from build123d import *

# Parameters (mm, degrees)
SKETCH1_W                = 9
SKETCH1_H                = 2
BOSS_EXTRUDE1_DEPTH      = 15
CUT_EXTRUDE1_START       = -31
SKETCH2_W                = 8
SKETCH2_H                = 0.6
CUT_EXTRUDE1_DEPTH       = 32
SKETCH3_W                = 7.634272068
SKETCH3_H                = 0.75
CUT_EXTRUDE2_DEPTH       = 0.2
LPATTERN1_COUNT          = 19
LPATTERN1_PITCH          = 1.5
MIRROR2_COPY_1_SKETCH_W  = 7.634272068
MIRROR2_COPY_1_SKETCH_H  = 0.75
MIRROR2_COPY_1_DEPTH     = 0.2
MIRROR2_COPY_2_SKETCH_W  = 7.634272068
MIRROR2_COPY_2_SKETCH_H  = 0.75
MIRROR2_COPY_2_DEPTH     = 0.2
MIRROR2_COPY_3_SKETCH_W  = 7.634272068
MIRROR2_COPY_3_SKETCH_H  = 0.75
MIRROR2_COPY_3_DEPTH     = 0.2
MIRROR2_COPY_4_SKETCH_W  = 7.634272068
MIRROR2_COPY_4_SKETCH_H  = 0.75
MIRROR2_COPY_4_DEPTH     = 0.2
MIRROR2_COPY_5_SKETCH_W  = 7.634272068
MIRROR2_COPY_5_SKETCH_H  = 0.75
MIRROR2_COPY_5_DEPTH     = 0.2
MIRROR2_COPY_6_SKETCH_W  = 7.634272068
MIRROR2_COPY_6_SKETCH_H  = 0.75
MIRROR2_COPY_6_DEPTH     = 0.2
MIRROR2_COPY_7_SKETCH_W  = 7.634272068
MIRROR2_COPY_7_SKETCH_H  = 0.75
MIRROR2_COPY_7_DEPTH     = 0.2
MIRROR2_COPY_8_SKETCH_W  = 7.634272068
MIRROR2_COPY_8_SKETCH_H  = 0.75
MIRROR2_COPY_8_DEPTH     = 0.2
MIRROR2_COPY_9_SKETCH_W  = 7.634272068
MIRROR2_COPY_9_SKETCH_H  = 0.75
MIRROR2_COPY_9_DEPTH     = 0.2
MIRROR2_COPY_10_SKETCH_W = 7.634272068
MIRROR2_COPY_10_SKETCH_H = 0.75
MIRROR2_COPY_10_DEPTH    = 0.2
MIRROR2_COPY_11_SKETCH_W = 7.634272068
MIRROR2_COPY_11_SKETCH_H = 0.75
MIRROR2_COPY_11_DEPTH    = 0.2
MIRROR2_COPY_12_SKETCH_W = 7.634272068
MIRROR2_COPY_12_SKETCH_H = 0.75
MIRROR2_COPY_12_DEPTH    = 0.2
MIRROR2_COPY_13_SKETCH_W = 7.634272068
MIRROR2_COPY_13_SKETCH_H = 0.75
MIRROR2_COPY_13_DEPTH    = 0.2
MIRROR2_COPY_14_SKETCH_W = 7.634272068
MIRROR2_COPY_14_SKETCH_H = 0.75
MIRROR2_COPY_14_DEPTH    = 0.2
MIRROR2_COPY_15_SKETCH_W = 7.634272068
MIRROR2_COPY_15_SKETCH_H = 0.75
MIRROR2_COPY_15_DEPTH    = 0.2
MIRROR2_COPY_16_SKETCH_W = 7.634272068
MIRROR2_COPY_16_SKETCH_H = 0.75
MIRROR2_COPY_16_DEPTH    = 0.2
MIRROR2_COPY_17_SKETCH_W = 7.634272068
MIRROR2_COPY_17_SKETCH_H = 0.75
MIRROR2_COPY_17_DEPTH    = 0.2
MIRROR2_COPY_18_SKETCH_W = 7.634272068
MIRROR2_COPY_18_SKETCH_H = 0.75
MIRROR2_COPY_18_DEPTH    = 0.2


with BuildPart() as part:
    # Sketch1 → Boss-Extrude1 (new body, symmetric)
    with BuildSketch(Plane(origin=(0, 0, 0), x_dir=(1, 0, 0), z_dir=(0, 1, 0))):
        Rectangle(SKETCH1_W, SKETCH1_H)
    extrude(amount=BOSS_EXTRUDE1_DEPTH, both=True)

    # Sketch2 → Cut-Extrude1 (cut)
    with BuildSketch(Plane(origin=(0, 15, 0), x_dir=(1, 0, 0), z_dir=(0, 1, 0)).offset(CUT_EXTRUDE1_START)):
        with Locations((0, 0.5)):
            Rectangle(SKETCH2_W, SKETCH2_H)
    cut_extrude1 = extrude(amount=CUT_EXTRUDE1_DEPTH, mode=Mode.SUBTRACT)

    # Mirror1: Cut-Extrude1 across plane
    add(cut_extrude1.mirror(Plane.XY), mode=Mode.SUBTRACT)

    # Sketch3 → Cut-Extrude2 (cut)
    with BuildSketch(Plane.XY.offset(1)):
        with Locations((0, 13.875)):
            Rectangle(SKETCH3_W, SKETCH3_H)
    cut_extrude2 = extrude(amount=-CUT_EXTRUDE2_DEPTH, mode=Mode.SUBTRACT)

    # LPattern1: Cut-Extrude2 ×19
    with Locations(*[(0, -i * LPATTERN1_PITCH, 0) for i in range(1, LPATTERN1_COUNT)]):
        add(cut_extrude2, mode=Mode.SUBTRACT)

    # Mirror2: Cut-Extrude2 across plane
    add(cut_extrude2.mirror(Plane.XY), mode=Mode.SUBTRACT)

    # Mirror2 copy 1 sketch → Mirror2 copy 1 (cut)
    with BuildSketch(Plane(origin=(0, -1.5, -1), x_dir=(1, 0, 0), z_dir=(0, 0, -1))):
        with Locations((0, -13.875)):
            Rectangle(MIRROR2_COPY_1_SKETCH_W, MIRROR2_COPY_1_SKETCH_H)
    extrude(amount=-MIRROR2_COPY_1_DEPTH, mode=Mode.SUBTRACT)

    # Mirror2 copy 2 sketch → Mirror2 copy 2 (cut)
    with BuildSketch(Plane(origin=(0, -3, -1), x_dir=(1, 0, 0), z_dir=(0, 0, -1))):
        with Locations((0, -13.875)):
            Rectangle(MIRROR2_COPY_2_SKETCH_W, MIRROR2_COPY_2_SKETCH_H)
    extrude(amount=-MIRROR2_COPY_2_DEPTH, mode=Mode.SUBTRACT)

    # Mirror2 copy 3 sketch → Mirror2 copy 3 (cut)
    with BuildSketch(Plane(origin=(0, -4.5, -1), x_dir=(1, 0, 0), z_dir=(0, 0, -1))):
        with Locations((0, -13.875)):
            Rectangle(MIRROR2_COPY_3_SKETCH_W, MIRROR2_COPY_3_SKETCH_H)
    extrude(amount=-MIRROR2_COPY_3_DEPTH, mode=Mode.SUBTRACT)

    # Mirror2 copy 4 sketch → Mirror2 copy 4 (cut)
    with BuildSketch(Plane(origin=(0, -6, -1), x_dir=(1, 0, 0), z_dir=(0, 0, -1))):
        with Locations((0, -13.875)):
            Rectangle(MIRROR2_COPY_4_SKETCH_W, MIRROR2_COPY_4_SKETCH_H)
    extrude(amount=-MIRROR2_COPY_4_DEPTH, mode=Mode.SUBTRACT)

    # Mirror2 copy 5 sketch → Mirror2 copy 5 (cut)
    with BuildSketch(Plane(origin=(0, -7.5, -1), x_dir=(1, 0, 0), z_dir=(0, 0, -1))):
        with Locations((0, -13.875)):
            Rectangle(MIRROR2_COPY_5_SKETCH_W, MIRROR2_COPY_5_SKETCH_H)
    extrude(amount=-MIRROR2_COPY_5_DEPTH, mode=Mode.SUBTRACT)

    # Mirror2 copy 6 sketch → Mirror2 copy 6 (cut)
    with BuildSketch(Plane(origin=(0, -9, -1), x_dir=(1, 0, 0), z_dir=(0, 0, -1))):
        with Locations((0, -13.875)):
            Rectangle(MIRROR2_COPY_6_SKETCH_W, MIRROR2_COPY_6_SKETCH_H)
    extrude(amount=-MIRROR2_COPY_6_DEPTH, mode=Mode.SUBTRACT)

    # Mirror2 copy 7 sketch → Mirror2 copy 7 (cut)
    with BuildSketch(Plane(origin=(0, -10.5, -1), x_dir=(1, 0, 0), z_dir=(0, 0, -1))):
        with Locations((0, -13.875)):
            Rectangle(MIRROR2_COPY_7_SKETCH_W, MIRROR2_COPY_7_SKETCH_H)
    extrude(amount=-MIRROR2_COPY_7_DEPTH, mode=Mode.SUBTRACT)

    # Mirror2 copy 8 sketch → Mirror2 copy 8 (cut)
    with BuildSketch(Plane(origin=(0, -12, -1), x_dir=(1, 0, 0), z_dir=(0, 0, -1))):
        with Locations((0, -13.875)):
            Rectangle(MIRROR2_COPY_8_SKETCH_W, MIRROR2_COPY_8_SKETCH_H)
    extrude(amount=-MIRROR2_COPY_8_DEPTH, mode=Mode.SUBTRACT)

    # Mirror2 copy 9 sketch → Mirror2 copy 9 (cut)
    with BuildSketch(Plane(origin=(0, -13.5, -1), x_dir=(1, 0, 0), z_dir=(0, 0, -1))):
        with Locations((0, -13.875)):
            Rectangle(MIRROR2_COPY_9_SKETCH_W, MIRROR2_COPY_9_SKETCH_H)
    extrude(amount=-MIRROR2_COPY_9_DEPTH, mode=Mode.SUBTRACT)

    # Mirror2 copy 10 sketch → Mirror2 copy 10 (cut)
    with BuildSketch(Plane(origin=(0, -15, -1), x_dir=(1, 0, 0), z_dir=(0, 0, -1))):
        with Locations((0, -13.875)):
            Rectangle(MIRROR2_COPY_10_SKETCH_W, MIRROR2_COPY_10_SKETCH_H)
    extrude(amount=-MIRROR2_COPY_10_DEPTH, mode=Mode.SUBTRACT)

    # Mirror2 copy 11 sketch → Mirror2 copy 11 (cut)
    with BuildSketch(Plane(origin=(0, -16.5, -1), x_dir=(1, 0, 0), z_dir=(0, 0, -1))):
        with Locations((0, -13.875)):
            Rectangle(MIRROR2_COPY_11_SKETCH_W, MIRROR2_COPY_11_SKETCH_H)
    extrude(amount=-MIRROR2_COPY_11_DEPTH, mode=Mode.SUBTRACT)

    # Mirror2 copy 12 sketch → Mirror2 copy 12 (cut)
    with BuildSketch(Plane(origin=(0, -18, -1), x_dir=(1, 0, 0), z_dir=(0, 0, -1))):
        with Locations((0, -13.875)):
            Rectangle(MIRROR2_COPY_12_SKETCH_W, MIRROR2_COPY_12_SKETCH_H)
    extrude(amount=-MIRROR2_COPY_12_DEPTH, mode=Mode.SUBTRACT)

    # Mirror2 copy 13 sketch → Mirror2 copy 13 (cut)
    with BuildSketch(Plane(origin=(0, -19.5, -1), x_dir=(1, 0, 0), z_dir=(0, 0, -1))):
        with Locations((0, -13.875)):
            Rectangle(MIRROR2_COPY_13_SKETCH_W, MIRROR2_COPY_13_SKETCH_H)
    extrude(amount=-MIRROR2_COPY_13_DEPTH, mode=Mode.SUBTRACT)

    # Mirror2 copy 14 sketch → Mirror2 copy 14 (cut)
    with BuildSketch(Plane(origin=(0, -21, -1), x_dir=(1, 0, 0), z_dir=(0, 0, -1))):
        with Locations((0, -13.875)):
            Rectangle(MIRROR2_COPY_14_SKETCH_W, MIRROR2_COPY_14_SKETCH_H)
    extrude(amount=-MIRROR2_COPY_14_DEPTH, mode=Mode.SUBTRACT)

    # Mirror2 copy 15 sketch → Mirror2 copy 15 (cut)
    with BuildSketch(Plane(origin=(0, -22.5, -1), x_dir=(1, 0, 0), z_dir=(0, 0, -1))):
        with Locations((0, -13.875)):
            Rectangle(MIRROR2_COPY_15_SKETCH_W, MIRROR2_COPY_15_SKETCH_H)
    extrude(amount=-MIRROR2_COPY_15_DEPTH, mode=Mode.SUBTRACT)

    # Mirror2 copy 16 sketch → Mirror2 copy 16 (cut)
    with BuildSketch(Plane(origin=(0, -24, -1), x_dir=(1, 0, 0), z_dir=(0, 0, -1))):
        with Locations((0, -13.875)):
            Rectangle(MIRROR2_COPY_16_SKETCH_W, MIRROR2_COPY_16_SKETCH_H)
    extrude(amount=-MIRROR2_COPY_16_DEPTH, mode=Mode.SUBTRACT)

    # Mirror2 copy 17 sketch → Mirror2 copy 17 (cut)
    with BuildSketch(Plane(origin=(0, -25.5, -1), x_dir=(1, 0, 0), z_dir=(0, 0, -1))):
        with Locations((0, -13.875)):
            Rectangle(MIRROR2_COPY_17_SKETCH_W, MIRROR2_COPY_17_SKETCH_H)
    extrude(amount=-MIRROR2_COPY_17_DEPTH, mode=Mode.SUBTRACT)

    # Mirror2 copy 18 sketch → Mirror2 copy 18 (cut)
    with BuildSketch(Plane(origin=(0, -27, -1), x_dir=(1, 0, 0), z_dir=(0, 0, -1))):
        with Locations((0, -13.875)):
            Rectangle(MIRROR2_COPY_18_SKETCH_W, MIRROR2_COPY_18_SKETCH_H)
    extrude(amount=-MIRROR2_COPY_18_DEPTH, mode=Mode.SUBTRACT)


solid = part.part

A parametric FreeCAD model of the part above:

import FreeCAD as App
import Part
import Sketcher

V = App.Vector
Q = App.Units.Quantity

doc = App.newDocument("Part")
body = doc.addObject("PartDesign::Body", "Body")

sketch1 = body.newObject("Sketcher::SketchObject", "Sketch")
sketch1.AttachmentSupport = (doc.getObject("XZ_Plane"), [""])
sketch1.MapMode = "FlatFace"
sketch1.addGeometry([
    Part.LineSegment(V(-4.5, -1, 0), V(-4.5, 1, 0)),
    Part.LineSegment(V(-4.5, 1, 0), V(4.5, 1, 0)),
    Part.LineSegment(V(4.5, 1, 0), V(4.5, -1, 0)),
    Part.LineSegment(V(4.5, -1, 0), V(-4.5, -1, 0)),
], False)
sketch1.addConstraint([
    Sketcher.Constraint("Coincident", 0, 2, 1, 1),
    Sketcher.Constraint("Coincident", 1, 2, 2, 1),
    Sketcher.Constraint("Coincident", 2, 2, 3, 1),
    Sketcher.Constraint("Coincident", 3, 2, 0, 1),
    Sketcher.Constraint("Vertical", 0),
    Sketcher.Constraint("Horizontal", 1),
    Sketcher.Constraint("Vertical", 2),
    Sketcher.Constraint("Horizontal", 3),
    Sketcher.Constraint("Symmetric", 0, 2, 2, 2, -1, 1),
    Sketcher.Constraint("DistanceX", 1, 1, 1, 2, Q("9 mm")),
    Sketcher.Constraint("DistanceY", 0, 1, 0, 2, Q("2 mm")),
])
pad1 = body.newObject("PartDesign::Pad", "Pad")
pad1.Profile = sketch1
pad1.Length = 30
pad1.Midplane = True

sketch2 = body.newObject("Sketcher::SketchObject", "Sketch001")
sketch2.AttachmentSupport = (doc.getObject("XZ_Plane"), [""])
sketch2.MapMode = "FlatFace"
sketch2.AttachmentOffset = App.Placement(V(0, 0, 16), App.Rotation())
sketch2.addGeometry([
    Part.LineSegment(V(-4, -0.8, 0), V(-4, -0.2, 0)),
    Part.LineSegment(V(-4, -0.2, 0), V(4, -0.2, 0)),
    Part.LineSegment(V(4, -0.2, 0), V(4, -0.8, 0)),
    Part.LineSegment(V(4, -0.8, 0), V(-4, -0.8, 0)),
], False)
sketch2.addConstraint([
    Sketcher.Constraint("Coincident", 0, 2, 1, 1),
    Sketcher.Constraint("Coincident", 1, 2, 2, 1),
    Sketcher.Constraint("Coincident", 2, 2, 3, 1),
    Sketcher.Constraint("Coincident", 3, 2, 0, 1),
    Sketcher.Constraint("Vertical", 0),
    Sketcher.Constraint("Horizontal", 1),
    Sketcher.Constraint("Vertical", 2),
    Sketcher.Constraint("Horizontal", 3),
    Sketcher.Constraint("DistanceX", 1, 1, 1, 2, Q("8 mm")),
    Sketcher.Constraint("DistanceY", 0, 1, 0, 2, Q("0.6 mm")),
    Sketcher.Constraint("DistanceX", 0, 2, -1, 1, Q("4 mm")),
    Sketcher.Constraint("DistanceY", 0, 2, -1, 1, Q("0.2 mm")),
])
pocket1 = body.newObject("PartDesign::Pocket", "Pocket")
pocket1.Profile = sketch2
pocket1.Length = 32
doc.recompute()

mirrored = body.newObject("PartDesign::Mirrored", "Mirrored")
mirrored.Originals = [pocket1]
mirrored.MirrorPlane = (doc.getObject("XY_Plane"), [""])
body.Tip = mirrored

sketch3 = body.newObject("Sketcher::SketchObject", "Sketch002")
sketch3.AttachmentSupport = (doc.getObject("XY_Plane"), [""])
sketch3.MapMode = "FlatFace"
sketch3.AttachmentOffset = App.Placement(V(0, 0, 1), App.Rotation())
sketch3.addGeometry([
    Part.LineSegment(V(-3.8, 14.2, 0), V(-3.8, 13.5, 0)),
    Part.LineSegment(V(-3.8, 13.5, 0), V(3.8, 13.5, 0)),
    Part.LineSegment(V(3.8, 13.5, 0), V(3.8, 14.2, 0)),
    Part.LineSegment(V(3.8, 14.2, 0), V(-3.8, 14.2, 0)),
], False)
sketch3.addConstraint([
    Sketcher.Constraint("Coincident", 0, 2, 1, 1),
    Sketcher.Constraint("Coincident", 1, 2, 2, 1),
    Sketcher.Constraint("Coincident", 2, 2, 3, 1),
    Sketcher.Constraint("Coincident", 3, 2, 0, 1),
    Sketcher.Constraint("Vertical", 0),
    Sketcher.Constraint("Horizontal", 1),
    Sketcher.Constraint("Vertical", 2),
    Sketcher.Constraint("Horizontal", 3),
    Sketcher.Constraint("DistanceY", 0, 2, 0, 1, Q("0.75 mm")),
    Sketcher.Constraint("DistanceY", -1, 1, 0, 2, Q("13.5 mm")),
    Sketcher.Constraint("DistanceX", 1, 1, 1, 2, Q("7.634272 mm")),
    Sketcher.Constraint("DistanceX", 0, 2, -1, 1, Q("3.817136 mm")),
])
pocket2 = body.newObject("PartDesign::Pocket", "Pocket001")
pocket2.Profile = sketch3
pocket2.Length = 0.2
doc.recompute()

linearpattern = body.newObject("PartDesign::LinearPattern", "LinearPattern")
linearpattern.Originals = [pocket2]
linearpattern.Direction = (doc.getObject("Y_Axis"), [""])
linearpattern.Mode = "offset"
linearpattern.Offset = 1.5
linearpattern.Occurrences = 19
linearpattern.Reversed = True
body.Tip = linearpattern
doc.recompute()

mirrored2 = body.newObject("PartDesign::Mirrored", "Mirrored001")
mirrored2.Originals = [pocket2]
mirrored2.MirrorPlane = (doc.getObject("XY_Plane"), [""])
body.Tip = mirrored2

sketch4 = body.newObject("Sketcher::SketchObject", "Sketch003")
sketch4.AttachmentSupport = (doc.getObject("XY_Plane"), [""])
sketch4.MapMode = "FlatFace"
sketch4.AttachmentOffset = App.Placement(V(0, 0, -1), App.Rotation())
sketch4.addGeometry([
    Part.LineSegment(V(-3.8, 12, 0), V(-3.8, 12.8, 0)),
    Part.LineSegment(V(-3.8, 12.8, 0), V(3.8, 12.8, 0)),
    Part.LineSegment(V(3.8, 12.8, 0), V(3.8, 12, 0)),
    Part.LineSegment(V(3.8, 12, 0), V(-3.8, 12, 0)),
], False)
sketch4.addConstraint([
    Sketcher.Constraint("Coincident", 0, 2, 1, 1),
    Sketcher.Constraint("Coincident", 1, 2, 2, 1),
    Sketcher.Constraint("Coincident", 2, 2, 3, 1),
    Sketcher.Constraint("Coincident", 3, 2, 0, 1),
    Sketcher.Constraint("Vertical", 0),
    Sketcher.Constraint("Horizontal", 1),
    Sketcher.Constraint("Vertical", 2),
    Sketcher.Constraint("Horizontal", 3),
    Sketcher.Constraint("DistanceY", -1, 1, 2, 2, Q("12 mm")),
    Sketcher.Constraint("DistanceY", 0, 1, 0, 2, Q("0.75 mm")),
    Sketcher.Constraint("DistanceX", 1, 1, 1, 2, Q("7.634272 mm")),
    Sketcher.Constraint("DistanceX", 0, 2, -1, 1, Q("3.817136 mm")),
])
pocket3 = body.newObject("PartDesign::Pocket", "Pocket002")
pocket3.Profile = sketch4
pocket3.Length = 0.2
pocket3.Reversed = True

sketch5 = body.newObject("Sketcher::SketchObject", "Sketch004")
sketch5.AttachmentSupport = (doc.getObject("XY_Plane"), [""])
sketch5.MapMode = "FlatFace"
sketch5.AttachmentOffset = App.Placement(V(0, 0, -1), App.Rotation())
sketch5.addGeometry([
    Part.LineSegment(V(-3.8, 10.5, 0), V(-3.8, 11.2, 0)),
    Part.LineSegment(V(-3.8, 11.2, 0), V(3.8, 11.2, 0)),
    Part.LineSegment(V(3.8, 11.2, 0), V(3.8, 10.5, 0)),
    Part.LineSegment(V(3.8, 10.5, 0), V(-3.8, 10.5, 0)),
], False)
sketch5.addConstraint([
    Sketcher.Constraint("Coincident", 0, 2, 1, 1),
    Sketcher.Constraint("Coincident", 1, 2, 2, 1),
    Sketcher.Constraint("Coincident", 2, 2, 3, 1),
    Sketcher.Constraint("Coincident", 3, 2, 0, 1),
    Sketcher.Constraint("Vertical", 0),
    Sketcher.Constraint("Horizontal", 1),
    Sketcher.Constraint("Vertical", 2),
    Sketcher.Constraint("Horizontal", 3),
    Sketcher.Constraint("DistanceY", 0, 1, 0, 2, Q("0.75 mm")),
    Sketcher.Constraint("DistanceY", -1, 1, 2, 2, Q("10.5 mm")),
    Sketcher.Constraint("DistanceX", 1, 1, 1, 2, Q("7.634272 mm")),
    Sketcher.Constraint("DistanceX", 0, 2, -1, 1, Q("3.817136 mm")),
])
pocket4 = body.newObject("PartDesign::Pocket", "Pocket003")
pocket4.Profile = sketch5
pocket4.Length = 0.2
pocket4.Reversed = True

sketch6 = body.newObject("Sketcher::SketchObject", "Sketch005")
sketch6.AttachmentSupport = (doc.getObject("XY_Plane"), [""])
sketch6.MapMode = "FlatFace"
sketch6.AttachmentOffset = App.Placement(V(0, 0, -1), App.Rotation())
sketch6.addGeometry([
    Part.LineSegment(V(-3.8, 9, 0), V(-3.8, 9.8, 0)),
    Part.LineSegment(V(-3.8, 9.8, 0), V(3.8, 9.8, 0)),
    Part.LineSegment(V(3.8, 9.8, 0), V(3.8, 9, 0)),
    Part.LineSegment(V(3.8, 9, 0), V(-3.8, 9, 0)),
], False)
sketch6.addConstraint([
    Sketcher.Constraint("Coincident", 0, 2, 1, 1),
    Sketcher.Constraint("Coincident", 1, 2, 2, 1),
    Sketcher.Constraint("Coincident", 2, 2, 3, 1),
    Sketcher.Constraint("Coincident", 3, 2, 0, 1),
    Sketcher.Constraint("Vertical", 0),
    Sketcher.Constraint("Horizontal", 1),
    Sketcher.Constraint("Vertical", 2),
    Sketcher.Constraint("Horizontal", 3),
    Sketcher.Constraint("DistanceY", -1, 1, 2, 2, Q("9 mm")),
    Sketcher.Constraint("DistanceY", 0, 1, 0, 2, Q("0.75 mm")),
    Sketcher.Constraint("DistanceX", 1, 1, 1, 2, Q("7.634272 mm")),
    Sketcher.Constraint("DistanceX", 0, 2, -1, 1, Q("3.817136 mm")),
])
pocket5 = body.newObject("PartDesign::Pocket", "Pocket004")
pocket5.Profile = sketch6
pocket5.Length = 0.2
pocket5.Reversed = True

sketch7 = body.newObject("Sketcher::SketchObject", "Sketch006")
sketch7.AttachmentSupport = (doc.getObject("XY_Plane"), [""])
sketch7.MapMode = "FlatFace"
sketch7.AttachmentOffset = App.Placement(V(0, 0, -1), App.Rotation())
sketch7.addGeometry([
    Part.LineSegment(V(-3.8, 7.5, 0), V(-3.8, 8.2, 0)),
    Part.LineSegment(V(-3.8, 8.2, 0), V(3.8, 8.2, 0)),
    Part.LineSegment(V(3.8, 8.2, 0), V(3.8, 7.5, 0)),
    Part.LineSegment(V(3.8, 7.5, 0), V(-3.8, 7.5, 0)),
], False)
sketch7.addConstraint([
    Sketcher.Constraint("Coincident", 0, 2, 1, 1),
    Sketcher.Constraint("Coincident", 1, 2, 2, 1),
    Sketcher.Constraint("Coincident", 2, 2, 3, 1),
    Sketcher.Constraint("Coincident", 3, 2, 0, 1),
    Sketcher.Constraint("Vertical", 0),
    Sketcher.Constraint("Horizontal", 1),
    Sketcher.Constraint("Vertical", 2),
    Sketcher.Constraint("Horizontal", 3),
    Sketcher.Constraint("DistanceY", 0, 1, 0, 2, Q("0.75 mm")),
    Sketcher.Constraint("DistanceY", -1, 1, 2, 2, Q("7.5 mm")),
    Sketcher.Constraint("DistanceX", 1, 1, 1, 2, Q("7.634272 mm")),
    Sketcher.Constraint("DistanceX", 0, 2, -1, 1, Q("3.817136 mm")),
])
pocket6 = body.newObject("PartDesign::Pocket", "Pocket005")
pocket6.Profile = sketch7
pocket6.Length = 0.2
pocket6.Reversed = True

sketch8 = body.newObject("Sketcher::SketchObject", "Sketch007")
sketch8.AttachmentSupport = (doc.getObject("XY_Plane"), [""])
sketch8.MapMode = "FlatFace"
sketch8.AttachmentOffset = App.Placement(V(0, 0, -1), App.Rotation())
sketch8.addGeometry([
    Part.LineSegment(V(-3.8, 6, 0), V(-3.8, 6.8, 0)),
    Part.LineSegment(V(-3.8, 6.8, 0), V(3.8, 6.8, 0)),
    Part.LineSegment(V(3.8, 6.8, 0), V(3.8, 6, 0)),
    Part.LineSegment(V(3.8, 6, 0), V(-3.8, 6, 0)),
], False)
sketch8.addConstraint([
    Sketcher.Constraint("Coincident", 0, 2, 1, 1),
    Sketcher.Constraint("Coincident", 1, 2, 2, 1),
    Sketcher.Constraint("Coincident", 2, 2, 3, 1),
    Sketcher.Constraint("Coincident", 3, 2, 0, 1),
    Sketcher.Constraint("Vertical", 0),
    Sketcher.Constraint("Horizontal", 1),
    Sketcher.Constraint("Vertical", 2),
    Sketcher.Constraint("Horizontal", 3),
    Sketcher.Constraint("DistanceY", -1, 1, 2, 2, Q("6 mm")),
    Sketcher.Constraint("DistanceY", 0, 1, 0, 2, Q("0.75 mm")),
    Sketcher.Constraint("DistanceX", 1, 1, 1, 2, Q("7.634272 mm")),
    Sketcher.Constraint("DistanceX", 0, 2, -1, 1, Q("3.817136 mm")),
])
pocket7 = body.newObject("PartDesign::Pocket", "Pocket006")
pocket7.Profile = sketch8
pocket7.Length = 0.2
pocket7.Reversed = True

sketch9 = body.newObject("Sketcher::SketchObject", "Sketch008")
sketch9.AttachmentSupport = (doc.getObject("XY_Plane"), [""])
sketch9.MapMode = "FlatFace"
sketch9.AttachmentOffset = App.Placement(V(0, 0, -1), App.Rotation())
sketch9.addGeometry([
    Part.LineSegment(V(-3.8, 4.5, 0), V(-3.8, 5.2, 0)),
    Part.LineSegment(V(-3.8, 5.2, 0), V(3.8, 5.2, 0)),
    Part.LineSegment(V(3.8, 5.2, 0), V(3.8, 4.5, 0)),
    Part.LineSegment(V(3.8, 4.5, 0), V(-3.8, 4.5, 0)),
], False)
sketch9.addConstraint([
    Sketcher.Constraint("Coincident", 0, 2, 1, 1),
    Sketcher.Constraint("Coincident", 1, 2, 2, 1),
    Sketcher.Constraint("Coincident", 2, 2, 3, 1),
    Sketcher.Constraint("Coincident", 3, 2, 0, 1),
    Sketcher.Constraint("Vertical", 0),
    Sketcher.Constraint("Horizontal", 1),
    Sketcher.Constraint("Vertical", 2),
    Sketcher.Constraint("Horizontal", 3),
    Sketcher.Constraint("DistanceY", 0, 1, 0, 2, Q("0.75 mm")),
    Sketcher.Constraint("DistanceY", -1, 1, 2, 2, Q("4.5 mm")),
    Sketcher.Constraint("DistanceX", 1, 1, 1, 2, Q("7.634272 mm")),
    Sketcher.Constraint("DistanceX", 0, 2, -1, 1, Q("3.817136 mm")),
])
pocket8 = body.newObject("PartDesign::Pocket", "Pocket007")
pocket8.Profile = sketch9
pocket8.Length = 0.2
pocket8.Reversed = True

sketch10 = body.newObject("Sketcher::SketchObject", "Sketch009")
sketch10.AttachmentSupport = (doc.getObject("XY_Plane"), [""])
sketch10.MapMode = "FlatFace"
sketch10.AttachmentOffset = App.Placement(V(0, 0, -1), App.Rotation())
sketch10.addGeometry([
    Part.LineSegment(V(-3.8, 3, 0), V(-3.8, 3.8, 0)),
    Part.LineSegment(V(-3.8, 3.8, 0), V(3.8, 3.8, 0)),
    Part.LineSegment(V(3.8, 3.8, 0), V(3.8, 3, 0)),
    Part.LineSegment(V(3.8, 3, 0), V(-3.8, 3, 0)),
], False)
sketch10.addConstraint([
    Sketcher.Constraint("Coincident", 0, 2, 1, 1),
    Sketcher.Constraint("Coincident", 1, 2, 2, 1),
    Sketcher.Constraint("Coincident", 2, 2, 3, 1),
    Sketcher.Constraint("Coincident", 3, 2, 0, 1),
    Sketcher.Constraint("Vertical", 0),
    Sketcher.Constraint("Horizontal", 1),
    Sketcher.Constraint("Vertical", 2),
    Sketcher.Constraint("Horizontal", 3),
    Sketcher.Constraint("DistanceY", -1, 1, 2, 2, Q("3 mm")),
    Sketcher.Constraint("DistanceY", 0, 1, 0, 2, Q("0.75 mm")),
    Sketcher.Constraint("DistanceX", 1, 1, 1, 2, Q("7.634272 mm")),
    Sketcher.Constraint("DistanceX", 0, 2, -1, 1, Q("3.817136 mm")),
])
pocket9 = body.newObject("PartDesign::Pocket", "Pocket008")
pocket9.Profile = sketch10
pocket9.Length = 0.2
pocket9.Reversed = True

sketch11 = body.newObject("Sketcher::SketchObject", "Sketch010")
sketch11.AttachmentSupport = (doc.getObject("XY_Plane"), [""])
sketch11.MapMode = "FlatFace"
sketch11.AttachmentOffset = App.Placement(V(0, 0, -1), App.Rotation())
sketch11.addGeometry([
    Part.LineSegment(V(-3.8, 1.5, 0), V(-3.8, 2.2, 0)),
    Part.LineSegment(V(-3.8, 2.2, 0), V(3.8, 2.2, 0)),
    Part.LineSegment(V(3.8, 2.2, 0), V(3.8, 1.5, 0)),
    Part.LineSegment(V(3.8, 1.5, 0), V(-3.8, 1.5, 0)),
], False)
sketch11.addConstraint([
    Sketcher.Constraint("Coincident", 0, 2, 1, 1),
    Sketcher.Constraint("Coincident", 1, 2, 2, 1),
    Sketcher.Constraint("Coincident", 2, 2, 3, 1),
    Sketcher.Constraint("Coincident", 3, 2, 0, 1),
    Sketcher.Constraint("Vertical", 0),
    Sketcher.Constraint("Horizontal", 1),
    Sketcher.Constraint("Vertical", 2),
    Sketcher.Constraint("Horizontal", 3),
    Sketcher.Constraint("DistanceY", 0, 1, 0, 2, Q("0.75 mm")),
    Sketcher.Constraint("DistanceY", -1, 1, 2, 2, Q("1.5 mm")),
    Sketcher.Constraint("DistanceX", 1, 1, 1, 2, Q("7.634272 mm")),
    Sketcher.Constraint("DistanceX", 0, 2, -1, 1, Q("3.817136 mm")),
])
pocket10 = body.newObject("PartDesign::Pocket", "Pocket009")
pocket10.Profile = sketch11
pocket10.Length = 0.2
pocket10.Reversed = True

sketch12 = body.newObject("Sketcher::SketchObject", "Sketch011")
sketch12.AttachmentSupport = (doc.getObject("XY_Plane"), [""])
sketch12.MapMode = "FlatFace"
sketch12.AttachmentOffset = App.Placement(V(0, 0, -1), App.Rotation())
sketch12.addGeometry([
    Part.LineSegment(V(-3.8, 0, 0), V(-3.8, 0.8, 0)),
    Part.LineSegment(V(-3.8, 0.8, 0), V(3.8, 0.8, 0)),
    Part.LineSegment(V(3.8, 0.8, 0), V(3.8, 0, 0)),
    Part.LineSegment(V(3.8, 0, 0), V(-3.8, 0, 0)),
], False)
sketch12.addConstraint([
    Sketcher.Constraint("Coincident", 0, 2, 1, 1),
    Sketcher.Constraint("Coincident", 1, 2, 2, 1),
    Sketcher.Constraint("Coincident", 2, 2, 3, 1),
    Sketcher.Constraint("Coincident", 3, 2, 0, 1),
    Sketcher.Constraint("Vertical", 0),
    Sketcher.Constraint("Horizontal", 1),
    Sketcher.Constraint("Vertical", 2),
    Sketcher.Constraint("Horizontal", 3),
    Sketcher.Constraint("Symmetric", 2, 2, 3, 2, -1, 1),
    Sketcher.Constraint("DistanceY", 0, 1, 0, 2, Q("0.75 mm")),
    Sketcher.Constraint("DistanceX", 1, 1, 1, 2, Q("7.634272 mm")),
])
pocket11 = body.newObject("PartDesign::Pocket", "Pocket010")
pocket11.Profile = sketch12
pocket11.Length = 0.2
pocket11.Reversed = True

sketch13 = body.newObject("Sketcher::SketchObject", "Sketch012")
sketch13.AttachmentSupport = (doc.getObject("XY_Plane"), [""])
sketch13.MapMode = "FlatFace"
sketch13.AttachmentOffset = App.Placement(V(0, 0, -1), App.Rotation())
sketch13.addGeometry([
    Part.LineSegment(V(-3.8, -1.5, 0), V(-3.8, -0.8, 0)),
    Part.LineSegment(V(-3.8, -0.8, 0), V(3.8, -0.8, 0)),
    Part.LineSegment(V(3.8, -0.8, 0), V(3.8, -1.5, 0)),
    Part.LineSegment(V(3.8, -1.5, 0), V(-3.8, -1.5, 0)),
], False)
sketch13.addConstraint([
    Sketcher.Constraint("Coincident", 0, 2, 1, 1),
    Sketcher.Constraint("Coincident", 1, 2, 2, 1),
    Sketcher.Constraint("Coincident", 2, 2, 3, 1),
    Sketcher.Constraint("Coincident", 3, 2, 0, 1),
    Sketcher.Constraint("Vertical", 0),
    Sketcher.Constraint("Horizontal", 1),
    Sketcher.Constraint("Vertical", 2),
    Sketcher.Constraint("Horizontal", 3),
    Sketcher.Constraint("DistanceY", 0, 1, 0, 2, Q("0.75 mm")),
    Sketcher.Constraint("DistanceY", 2, 2, -1, 1, Q("1.5 mm")),
    Sketcher.Constraint("DistanceX", 1, 1, 1, 2, Q("7.634272 mm")),
    Sketcher.Constraint("DistanceX", 0, 2, -1, 1, Q("3.817136 mm")),
])
pocket12 = body.newObject("PartDesign::Pocket", "Pocket011")
pocket12.Profile = sketch13
pocket12.Length = 0.2
pocket12.Reversed = True

sketch14 = body.newObject("Sketcher::SketchObject", "Sketch013")
sketch14.AttachmentSupport = (doc.getObject("XY_Plane"), [""])
sketch14.MapMode = "FlatFace"
sketch14.AttachmentOffset = App.Placement(V(0, 0, -1), App.Rotation())
sketch14.addGeometry([
    Part.LineSegment(V(-3.8, -3, 0), V(-3.8, -2.2, 0)),
    Part.LineSegment(V(-3.8, -2.2, 0), V(3.8, -2.2, 0)),
    Part.LineSegment(V(3.8, -2.2, 0), V(3.8, -3, 0)),
    Part.LineSegment(V(3.8, -3, 0), V(-3.8, -3, 0)),
], False)
sketch14.addConstraint([
    Sketcher.Constraint("Coincident", 0, 2, 1, 1),
    Sketcher.Constraint("Coincident", 1, 2, 2, 1),
    Sketcher.Constraint("Coincident", 2, 2, 3, 1),
    Sketcher.Constraint("Coincident", 3, 2, 0, 1),
    Sketcher.Constraint("Vertical", 0),
    Sketcher.Constraint("Horizontal", 1),
    Sketcher.Constraint("Vertical", 2),
    Sketcher.Constraint("Horizontal", 3),
    Sketcher.Constraint("DistanceY", 2, 2, -1, 1, Q("3 mm")),
    Sketcher.Constraint("DistanceY", 0, 1, 0, 2, Q("0.75 mm")),
    Sketcher.Constraint("DistanceX", 1, 1, 1, 2, Q("7.634272 mm")),
    Sketcher.Constraint("DistanceX", 0, 2, -1, 1, Q("3.817136 mm")),
])
pocket13 = body.newObject("PartDesign::Pocket", "Pocket012")
pocket13.Profile = sketch14
pocket13.Length = 0.2
pocket13.Reversed = True

sketch15 = body.newObject("Sketcher::SketchObject", "Sketch014")
sketch15.AttachmentSupport = (doc.getObject("XY_Plane"), [""])
sketch15.MapMode = "FlatFace"
sketch15.AttachmentOffset = App.Placement(V(0, 0, -1), App.Rotation())
sketch15.addGeometry([
    Part.LineSegment(V(-3.8, -4.5, 0), V(-3.8, -3.8, 0)),
    Part.LineSegment(V(-3.8, -3.8, 0), V(3.8, -3.8, 0)),
    Part.LineSegment(V(3.8, -3.8, 0), V(3.8, -4.5, 0)),
    Part.LineSegment(V(3.8, -4.5, 0), V(-3.8, -4.5, 0)),
], False)
sketch15.addConstraint([
    Sketcher.Constraint("Coincident", 0, 2, 1, 1),
    Sketcher.Constraint("Coincident", 1, 2, 2, 1),
    Sketcher.Constraint("Coincident", 2, 2, 3, 1),
    Sketcher.Constraint("Coincident", 3, 2, 0, 1),
    Sketcher.Constraint("Vertical", 0),
    Sketcher.Constraint("Horizontal", 1),
    Sketcher.Constraint("Vertical", 2),
    Sketcher.Constraint("Horizontal", 3),
    Sketcher.Constraint("DistanceY", 0, 1, 0, 2, Q("0.75 mm")),
    Sketcher.Constraint("DistanceY", 2, 2, -1, 1, Q("4.5 mm")),
    Sketcher.Constraint("DistanceX", 1, 1, 1, 2, Q("7.634272 mm")),
    Sketcher.Constraint("DistanceX", 0, 2, -1, 1, Q("3.817136 mm")),
])
pocket14 = body.newObject("PartDesign::Pocket", "Pocket013")
pocket14.Profile = sketch15
pocket14.Length = 0.2
pocket14.Reversed = True

sketch16 = body.newObject("Sketcher::SketchObject", "Sketch015")
sketch16.AttachmentSupport = (doc.getObject("XY_Plane"), [""])
sketch16.MapMode = "FlatFace"
sketch16.AttachmentOffset = App.Placement(V(0, 0, -1), App.Rotation())
sketch16.addGeometry([
    Part.LineSegment(V(-3.8, -6, 0), V(-3.8, -5.2, 0)),
    Part.LineSegment(V(-3.8, -5.2, 0), V(3.8, -5.2, 0)),
    Part.LineSegment(V(3.8, -5.2, 0), V(3.8, -6, 0)),
    Part.LineSegment(V(3.8, -6, 0), V(-3.8, -6, 0)),
], False)
sketch16.addConstraint([
    Sketcher.Constraint("Coincident", 0, 2, 1, 1),
    Sketcher.Constraint("Coincident", 1, 2, 2, 1),
    Sketcher.Constraint("Coincident", 2, 2, 3, 1),
    Sketcher.Constraint("Coincident", 3, 2, 0, 1),
    Sketcher.Constraint("Vertical", 0),
    Sketcher.Constraint("Horizontal", 1),
    Sketcher.Constraint("Vertical", 2),
    Sketcher.Constraint("Horizontal", 3),
    Sketcher.Constraint("DistanceY", 2, 2, -1, 1, Q("6 mm")),
    Sketcher.Constraint("DistanceY", 0, 1, 0, 2, Q("0.75 mm")),
    Sketcher.Constraint("DistanceX", 1, 1, 1, 2, Q("7.634272 mm")),
    Sketcher.Constraint("DistanceX", 0, 2, -1, 1, Q("3.817136 mm")),
])
pocket15 = body.newObject("PartDesign::Pocket", "Pocket014")
pocket15.Profile = sketch16
pocket15.Length = 0.2
pocket15.Reversed = True

sketch17 = body.newObject("Sketcher::SketchObject", "Sketch016")
sketch17.AttachmentSupport = (doc.getObject("XY_Plane"), [""])
sketch17.MapMode = "FlatFace"
sketch17.AttachmentOffset = App.Placement(V(0, 0, -1), App.Rotation())
sketch17.addGeometry([
    Part.LineSegment(V(-3.8, -7.5, 0), V(-3.8, -6.8, 0)),
    Part.LineSegment(V(-3.8, -6.8, 0), V(3.8, -6.8, 0)),
    Part.LineSegment(V(3.8, -6.8, 0), V(3.8, -7.5, 0)),
    Part.LineSegment(V(3.8, -7.5, 0), V(-3.8, -7.5, 0)),
], False)
sketch17.addConstraint([
    Sketcher.Constraint("Coincident", 0, 2, 1, 1),
    Sketcher.Constraint("Coincident", 1, 2, 2, 1),
    Sketcher.Constraint("Coincident", 2, 2, 3, 1),
    Sketcher.Constraint("Coincident", 3, 2, 0, 1),
    Sketcher.Constraint("Vertical", 0),
    Sketcher.Constraint("Horizontal", 1),
    Sketcher.Constraint("Vertical", 2),
    Sketcher.Constraint("Horizontal", 3),
    Sketcher.Constraint("DistanceY", 0, 1, 0, 2, Q("0.75 mm")),
    Sketcher.Constraint("DistanceY", 2, 2, -1, 1, Q("7.5 mm")),
    Sketcher.Constraint("DistanceX", 1, 1, 1, 2, Q("7.634272 mm")),
    Sketcher.Constraint("DistanceX", 0, 2, -1, 1, Q("3.817136 mm")),
])
pocket16 = body.newObject("PartDesign::Pocket", "Pocket015")
pocket16.Profile = sketch17
pocket16.Length = 0.2
pocket16.Reversed = True

sketch18 = body.newObject("Sketcher::SketchObject", "Sketch017")
sketch18.AttachmentSupport = (doc.getObject("XY_Plane"), [""])
sketch18.MapMode = "FlatFace"
sketch18.AttachmentOffset = App.Placement(V(0, 0, -1), App.Rotation())
sketch18.addGeometry([
    Part.LineSegment(V(-3.8, -9, 0), V(-3.8, -8.2, 0)),
    Part.LineSegment(V(-3.8, -8.2, 0), V(3.8, -8.2, 0)),
    Part.LineSegment(V(3.8, -8.2, 0), V(3.8, -9, 0)),
    Part.LineSegment(V(3.8, -9, 0), V(-3.8, -9, 0)),
], False)
sketch18.addConstraint([
    Sketcher.Constraint("Coincident", 0, 2, 1, 1),
    Sketcher.Constraint("Coincident", 1, 2, 2, 1),
    Sketcher.Constraint("Coincident", 2, 2, 3, 1),
    Sketcher.Constraint("Coincident", 3, 2, 0, 1),
    Sketcher.Constraint("Vertical", 0),
    Sketcher.Constraint("Horizontal", 1),
    Sketcher.Constraint("Vertical", 2),
    Sketcher.Constraint("Horizontal", 3),
    Sketcher.Constraint("DistanceY", 2, 2, -1, 1, Q("9 mm")),
    Sketcher.Constraint("DistanceY", 0, 1, 0, 2, Q("0.75 mm")),
    Sketcher.Constraint("DistanceX", 1, 1, 1, 2, Q("7.634272 mm")),
    Sketcher.Constraint("DistanceX", 0, 2, -1, 1, Q("3.817136 mm")),
])
pocket17 = body.newObject("PartDesign::Pocket", "Pocket016")
pocket17.Profile = sketch18
pocket17.Length = 0.2
pocket17.Reversed = True

sketch19 = body.newObject("Sketcher::SketchObject", "Sketch018")
sketch19.AttachmentSupport = (doc.getObject("XY_Plane"), [""])
sketch19.MapMode = "FlatFace"
sketch19.AttachmentOffset = App.Placement(V(0, 0, -1), App.Rotation())
sketch19.addGeometry([
    Part.LineSegment(V(-3.8, -10.5, 0), V(-3.8, -9.8, 0)),
    Part.LineSegment(V(-3.8, -9.8, 0), V(3.8, -9.8, 0)),
    Part.LineSegment(V(3.8, -9.8, 0), V(3.8, -10.5, 0)),
    Part.LineSegment(V(3.8, -10.5, 0), V(-3.8, -10.5, 0)),
], False)
sketch19.addConstraint([
    Sketcher.Constraint("Coincident", 0, 2, 1, 1),
    Sketcher.Constraint("Coincident", 1, 2, 2, 1),
    Sketcher.Constraint("Coincident", 2, 2, 3, 1),
    Sketcher.Constraint("Coincident", 3, 2, 0, 1),
    Sketcher.Constraint("Vertical", 0),
    Sketcher.Constraint("Horizontal", 1),
    Sketcher.Constraint("Vertical", 2),
    Sketcher.Constraint("Horizontal", 3),
    Sketcher.Constraint("DistanceY", 0, 1, 0, 2, Q("0.75 mm")),
    Sketcher.Constraint("DistanceY", 2, 2, -1, 1, Q("10.5 mm")),
    Sketcher.Constraint("DistanceX", 1, 1, 1, 2, Q("7.634272 mm")),
    Sketcher.Constraint("DistanceX", 0, 2, -1, 1, Q("3.817136 mm")),
])
pocket18 = body.newObject("PartDesign::Pocket", "Pocket017")
pocket18.Profile = sketch19
pocket18.Length = 0.2
pocket18.Reversed = True

sketch20 = body.newObject("Sketcher::SketchObject", "Sketch019")
sketch20.AttachmentSupport = (doc.getObject("XY_Plane"), [""])
sketch20.MapMode = "FlatFace"
sketch20.AttachmentOffset = App.Placement(V(0, 0, -1), App.Rotation())
sketch20.addGeometry([
    Part.LineSegment(V(-3.8, -12, 0), V(-3.8, -11.2, 0)),
    Part.LineSegment(V(-3.8, -11.2, 0), V(3.8, -11.2, 0)),
    Part.LineSegment(V(3.8, -11.2, 0), V(3.8, -12, 0)),
    Part.LineSegment(V(3.8, -12, 0), V(-3.8, -12, 0)),
], False)
sketch20.addConstraint([
    Sketcher.Constraint("Coincident", 0, 2, 1, 1),
    Sketcher.Constraint("Coincident", 1, 2, 2, 1),
    Sketcher.Constraint("Coincident", 2, 2, 3, 1),
    Sketcher.Constraint("Coincident", 3, 2, 0, 1),
    Sketcher.Constraint("Vertical", 0),
    Sketcher.Constraint("Horizontal", 1),
    Sketcher.Constraint("Vertical", 2),
    Sketcher.Constraint("Horizontal", 3),
    Sketcher.Constraint("DistanceY", 2, 2, -1, 1, Q("12 mm")),
    Sketcher.Constraint("DistanceY", 0, 1, 0, 2, Q("0.75 mm")),
    Sketcher.Constraint("DistanceX", 1, 1, 1, 2, Q("7.634272 mm")),
    Sketcher.Constraint("DistanceX", 0, 2, -1, 1, Q("3.817136 mm")),
])
pocket19 = body.newObject("PartDesign::Pocket", "Pocket018")
pocket19.Profile = sketch20
pocket19.Length = 0.2
pocket19.Reversed = True

sketch21 = body.newObject("Sketcher::SketchObject", "Sketch020")
sketch21.AttachmentSupport = (doc.getObject("XY_Plane"), [""])
sketch21.MapMode = "FlatFace"
sketch21.AttachmentOffset = App.Placement(V(0, 0, -1), App.Rotation())
sketch21.addGeometry([
    Part.LineSegment(V(-3.8, -13.5, 0), V(-3.8, -12.8, 0)),
    Part.LineSegment(V(-3.8, -12.8, 0), V(3.8, -12.8, 0)),
    Part.LineSegment(V(3.8, -12.8, 0), V(3.8, -13.5, 0)),
    Part.LineSegment(V(3.8, -13.5, 0), V(-3.8, -13.5, 0)),
], False)
sketch21.addConstraint([
    Sketcher.Constraint("Coincident", 0, 2, 1, 1),
    Sketcher.Constraint("Coincident", 1, 2, 2, 1),
    Sketcher.Constraint("Coincident", 2, 2, 3, 1),
    Sketcher.Constraint("Coincident", 3, 2, 0, 1),
    Sketcher.Constraint("Vertical", 0),
    Sketcher.Constraint("Horizontal", 1),
    Sketcher.Constraint("Vertical", 2),
    Sketcher.Constraint("Horizontal", 3),
    Sketcher.Constraint("DistanceY", 0, 1, 0, 2, Q("0.75 mm")),
    Sketcher.Constraint("DistanceY", 2, 2, -1, 1, Q("13.5 mm")),
    Sketcher.Constraint("DistanceX", 1, 1, 1, 2, Q("7.634272 mm")),
    Sketcher.Constraint("DistanceX", 0, 2, -1, 1, Q("3.817136 mm")),
])
pocket20 = body.newObject("PartDesign::Pocket", "Pocket019")
pocket20.Profile = sketch21
pocket20.Length = 0.2
pocket20.Reversed = True

doc.recompute()
